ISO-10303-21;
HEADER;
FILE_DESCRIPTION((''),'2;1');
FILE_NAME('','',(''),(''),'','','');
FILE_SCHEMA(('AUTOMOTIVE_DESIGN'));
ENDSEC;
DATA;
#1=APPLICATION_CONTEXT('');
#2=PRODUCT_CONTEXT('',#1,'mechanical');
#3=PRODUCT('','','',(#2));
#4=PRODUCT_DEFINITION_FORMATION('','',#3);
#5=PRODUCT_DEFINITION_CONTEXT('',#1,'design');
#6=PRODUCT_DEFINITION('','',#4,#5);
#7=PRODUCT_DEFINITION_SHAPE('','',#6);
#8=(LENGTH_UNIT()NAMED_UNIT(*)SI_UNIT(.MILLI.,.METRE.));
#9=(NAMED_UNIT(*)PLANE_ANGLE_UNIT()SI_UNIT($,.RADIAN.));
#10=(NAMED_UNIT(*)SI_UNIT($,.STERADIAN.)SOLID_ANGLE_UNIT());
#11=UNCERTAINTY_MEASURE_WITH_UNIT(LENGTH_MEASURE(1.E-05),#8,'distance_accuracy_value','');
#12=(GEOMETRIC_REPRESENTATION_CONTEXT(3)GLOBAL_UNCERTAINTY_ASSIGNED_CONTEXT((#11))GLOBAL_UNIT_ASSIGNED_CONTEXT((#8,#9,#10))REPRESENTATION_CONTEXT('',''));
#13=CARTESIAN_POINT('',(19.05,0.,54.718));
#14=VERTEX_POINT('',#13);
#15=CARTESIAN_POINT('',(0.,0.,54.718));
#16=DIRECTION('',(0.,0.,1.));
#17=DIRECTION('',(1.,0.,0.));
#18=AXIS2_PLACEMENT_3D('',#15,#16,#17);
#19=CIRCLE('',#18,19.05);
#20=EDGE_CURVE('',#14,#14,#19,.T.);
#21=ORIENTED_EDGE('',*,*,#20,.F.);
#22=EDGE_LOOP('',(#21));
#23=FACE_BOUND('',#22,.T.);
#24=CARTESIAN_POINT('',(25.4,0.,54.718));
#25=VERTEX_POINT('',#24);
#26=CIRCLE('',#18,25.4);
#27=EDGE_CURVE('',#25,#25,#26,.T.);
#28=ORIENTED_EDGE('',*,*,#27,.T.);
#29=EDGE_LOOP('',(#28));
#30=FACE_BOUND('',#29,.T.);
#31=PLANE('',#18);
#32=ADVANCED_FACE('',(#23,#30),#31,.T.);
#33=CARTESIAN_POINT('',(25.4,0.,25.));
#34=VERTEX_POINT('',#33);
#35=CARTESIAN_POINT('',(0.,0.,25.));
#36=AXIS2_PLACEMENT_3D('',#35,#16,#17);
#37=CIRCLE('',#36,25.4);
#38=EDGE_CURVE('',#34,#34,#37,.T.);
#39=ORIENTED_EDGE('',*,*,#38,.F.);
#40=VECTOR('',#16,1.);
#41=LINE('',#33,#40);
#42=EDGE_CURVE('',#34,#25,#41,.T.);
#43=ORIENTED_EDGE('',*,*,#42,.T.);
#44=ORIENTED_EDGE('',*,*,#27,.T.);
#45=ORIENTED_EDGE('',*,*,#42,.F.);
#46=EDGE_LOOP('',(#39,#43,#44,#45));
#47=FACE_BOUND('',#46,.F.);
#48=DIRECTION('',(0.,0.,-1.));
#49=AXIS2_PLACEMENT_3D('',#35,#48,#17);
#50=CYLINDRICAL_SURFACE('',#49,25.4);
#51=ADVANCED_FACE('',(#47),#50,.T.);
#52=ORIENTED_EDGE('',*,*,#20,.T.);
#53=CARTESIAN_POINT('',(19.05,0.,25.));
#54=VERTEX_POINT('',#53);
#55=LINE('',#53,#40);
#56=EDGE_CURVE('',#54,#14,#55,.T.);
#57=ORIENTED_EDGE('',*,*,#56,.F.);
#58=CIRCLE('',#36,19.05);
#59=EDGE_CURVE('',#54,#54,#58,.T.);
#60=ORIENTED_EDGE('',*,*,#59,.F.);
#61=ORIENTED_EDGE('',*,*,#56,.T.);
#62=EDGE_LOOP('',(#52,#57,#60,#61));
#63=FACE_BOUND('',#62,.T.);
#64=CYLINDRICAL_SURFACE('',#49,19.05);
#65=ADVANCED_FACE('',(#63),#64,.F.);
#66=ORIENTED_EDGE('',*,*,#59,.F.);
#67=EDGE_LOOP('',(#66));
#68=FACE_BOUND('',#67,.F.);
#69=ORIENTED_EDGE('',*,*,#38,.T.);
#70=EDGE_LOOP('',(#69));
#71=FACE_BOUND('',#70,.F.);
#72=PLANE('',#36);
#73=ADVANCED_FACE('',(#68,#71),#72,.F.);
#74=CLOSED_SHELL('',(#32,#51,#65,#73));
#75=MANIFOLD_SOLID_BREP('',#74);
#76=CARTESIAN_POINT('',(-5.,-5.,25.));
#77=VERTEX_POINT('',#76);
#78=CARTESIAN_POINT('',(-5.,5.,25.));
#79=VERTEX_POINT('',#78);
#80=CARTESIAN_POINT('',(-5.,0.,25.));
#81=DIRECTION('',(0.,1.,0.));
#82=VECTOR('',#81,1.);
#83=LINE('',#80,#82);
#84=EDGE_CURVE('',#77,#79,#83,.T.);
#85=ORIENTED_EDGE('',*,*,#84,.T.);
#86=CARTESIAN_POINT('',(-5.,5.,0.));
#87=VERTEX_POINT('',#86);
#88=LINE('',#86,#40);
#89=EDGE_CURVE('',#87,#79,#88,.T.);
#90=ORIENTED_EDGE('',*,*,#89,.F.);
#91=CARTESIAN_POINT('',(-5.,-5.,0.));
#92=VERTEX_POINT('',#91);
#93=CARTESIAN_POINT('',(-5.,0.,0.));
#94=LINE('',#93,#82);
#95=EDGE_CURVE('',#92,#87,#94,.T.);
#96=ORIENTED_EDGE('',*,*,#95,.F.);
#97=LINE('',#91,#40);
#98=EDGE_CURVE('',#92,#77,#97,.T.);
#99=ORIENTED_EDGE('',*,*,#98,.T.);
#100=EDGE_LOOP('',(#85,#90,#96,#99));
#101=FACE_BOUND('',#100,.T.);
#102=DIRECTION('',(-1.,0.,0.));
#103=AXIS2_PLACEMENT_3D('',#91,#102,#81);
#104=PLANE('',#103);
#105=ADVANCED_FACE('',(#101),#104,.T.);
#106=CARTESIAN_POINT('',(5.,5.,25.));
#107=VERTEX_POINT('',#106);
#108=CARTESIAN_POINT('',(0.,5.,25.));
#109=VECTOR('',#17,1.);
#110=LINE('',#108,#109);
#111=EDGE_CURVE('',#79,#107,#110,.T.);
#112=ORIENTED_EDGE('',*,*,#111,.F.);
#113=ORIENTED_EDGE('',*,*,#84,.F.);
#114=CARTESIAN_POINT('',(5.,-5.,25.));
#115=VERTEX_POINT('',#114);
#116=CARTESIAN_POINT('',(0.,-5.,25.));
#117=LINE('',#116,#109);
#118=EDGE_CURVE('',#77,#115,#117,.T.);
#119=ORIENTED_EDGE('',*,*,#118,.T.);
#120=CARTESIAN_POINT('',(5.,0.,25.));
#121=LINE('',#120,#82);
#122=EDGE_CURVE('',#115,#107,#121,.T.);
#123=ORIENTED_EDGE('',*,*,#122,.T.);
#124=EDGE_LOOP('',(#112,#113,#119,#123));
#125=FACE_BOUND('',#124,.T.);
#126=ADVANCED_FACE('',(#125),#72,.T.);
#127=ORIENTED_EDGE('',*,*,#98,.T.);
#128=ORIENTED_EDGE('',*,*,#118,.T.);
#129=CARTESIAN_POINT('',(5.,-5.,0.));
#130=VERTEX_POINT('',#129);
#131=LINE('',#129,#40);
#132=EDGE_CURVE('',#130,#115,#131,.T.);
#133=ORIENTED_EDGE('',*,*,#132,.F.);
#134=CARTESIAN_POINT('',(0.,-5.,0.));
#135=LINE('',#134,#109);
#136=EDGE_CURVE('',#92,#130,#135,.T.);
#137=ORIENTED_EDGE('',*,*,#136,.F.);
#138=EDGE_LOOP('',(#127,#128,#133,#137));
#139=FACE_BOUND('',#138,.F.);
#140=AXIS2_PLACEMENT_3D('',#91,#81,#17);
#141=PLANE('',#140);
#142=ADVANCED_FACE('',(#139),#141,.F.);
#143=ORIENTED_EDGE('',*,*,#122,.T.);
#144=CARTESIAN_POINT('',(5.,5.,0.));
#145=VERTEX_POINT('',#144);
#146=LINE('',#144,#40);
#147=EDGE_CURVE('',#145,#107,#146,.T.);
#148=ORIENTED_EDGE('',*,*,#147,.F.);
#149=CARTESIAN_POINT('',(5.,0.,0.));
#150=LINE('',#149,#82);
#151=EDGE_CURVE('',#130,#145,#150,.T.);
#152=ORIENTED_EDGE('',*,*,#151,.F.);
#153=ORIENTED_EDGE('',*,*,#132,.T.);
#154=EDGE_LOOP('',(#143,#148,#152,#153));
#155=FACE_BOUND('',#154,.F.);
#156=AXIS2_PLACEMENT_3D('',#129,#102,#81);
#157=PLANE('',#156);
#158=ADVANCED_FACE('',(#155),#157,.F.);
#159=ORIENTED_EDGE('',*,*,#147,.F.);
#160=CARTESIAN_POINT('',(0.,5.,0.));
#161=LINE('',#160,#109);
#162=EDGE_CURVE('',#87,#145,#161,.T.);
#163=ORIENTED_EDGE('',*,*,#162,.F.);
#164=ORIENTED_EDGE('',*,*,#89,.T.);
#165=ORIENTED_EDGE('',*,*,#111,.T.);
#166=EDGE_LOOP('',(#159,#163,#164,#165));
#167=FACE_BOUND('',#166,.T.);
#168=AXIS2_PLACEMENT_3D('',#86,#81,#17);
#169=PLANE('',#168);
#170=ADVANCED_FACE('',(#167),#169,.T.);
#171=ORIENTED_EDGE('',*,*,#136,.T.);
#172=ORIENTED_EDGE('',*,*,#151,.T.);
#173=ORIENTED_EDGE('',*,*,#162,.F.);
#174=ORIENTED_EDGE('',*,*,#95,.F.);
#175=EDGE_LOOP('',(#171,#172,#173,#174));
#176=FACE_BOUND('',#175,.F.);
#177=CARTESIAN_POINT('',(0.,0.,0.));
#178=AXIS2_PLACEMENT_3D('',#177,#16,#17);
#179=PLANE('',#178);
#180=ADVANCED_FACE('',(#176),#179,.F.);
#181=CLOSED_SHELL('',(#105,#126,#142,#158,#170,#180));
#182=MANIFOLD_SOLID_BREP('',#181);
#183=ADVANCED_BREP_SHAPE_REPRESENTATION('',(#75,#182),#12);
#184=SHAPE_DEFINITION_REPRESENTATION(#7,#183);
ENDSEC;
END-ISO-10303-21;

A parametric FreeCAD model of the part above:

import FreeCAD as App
import Part
import Sketcher
from FreeCAD import Vector
Q = App.Units.Quantity

doc = App.newDocument("Part")
params = doc.addObject("Spreadsheet::Sheet", "Params")
for row, (alias, value) in enumerate([
    ("pad1_length", "25 mm"),
    ("sketch2_diameter", "2 in"),
    ("sketch2_diameter2", "1.5 in"),
    ("pad2_length", "1.17 in"),
], start=1):
    params.set(f"A{row}", alias)
    params.set(f"B{row}", "=" + value)
    params.setAlias(f"B{row}", alias)

body = doc.addObject("PartDesign::Body", "Body")

# Sketch on XY plane
sketch1 = doc.addObject("Sketcher::SketchObject", "Sketch")
body.addObject(sketch1)
sketch1.AttachmentSupport = (doc.XY_Plane, [""])
sketch1.MapMode = "FlatFace"
sketch1.addGeometry(Part.LineSegment(Vector(-5, 5, 0), Vector(-5, -5, 0)), False)
sketch1.addGeometry(Part.LineSegment(Vector(-5, -5, 0), Vector(5, -5, 0)), False)
sketch1.addGeometry(Part.LineSegment(Vector(5, -5, 0), Vector(5, 5, 0)), False)
sketch1.addGeometry(Part.LineSegment(Vector(5, 5, 0), Vector(-5, 5, 0)), False)
sketch1.addConstraint(Sketcher.Constraint("Coincident", 0, 2, 1, 1))
sketch1.addConstraint(Sketcher.Constraint("Coincident", 1, 2, 2, 1))
sketch1.addConstraint(Sketcher.Constraint("Coincident", 2, 2, 3, 1))
sketch1.addConstraint(Sketcher.Constraint("Coincident", 3, 2, 0, 1))
sketch1.addConstraint(Sketcher.Constraint("Vertical", 0))
sketch1.addConstraint(Sketcher.Constraint("Horizontal", 1))
sketch1.addConstraint(Sketcher.Constraint("Vertical", 2))
sketch1.addConstraint(Sketcher.Constraint("Horizontal", 3))
sketch1.addConstraint(Sketcher.Constraint("Symmetric", 0, 2, 2, 2, -1, 1))
sketch1.addConstraint(Sketcher.Constraint("Equal", 3, 0))
sketch1.addConstraint(Sketcher.Constraint("DistanceX", 1, 1, 1, 2, Q("10 mm")))
pad1 = doc.addObject("PartDesign::Pad", "Pad")
body.addObject(pad1)
pad1.Profile = sketch1
pad1.setExpression("Length", "Params.pad1_length")
body2 = doc.addObject("PartDesign::Body", "Body001")

# Sketch on XY plane
sketch2 = doc.addObject("Sketcher::SketchObject", "Sketch001")
body2.addObject(sketch2)
sketch2.AttachmentSupport = (doc.getObject("XY_Plane001"), [""])
sketch2.MapMode = "FlatFace"
sketch2.AttachmentOffset = App.Placement(Vector(0, 0, 25), App.Rotation())
sketch2.addGeometry(Part.Circle(Vector(0, 0, 0), Vector(0, 0, 1), 25), False)
sketch2.addGeometry(Part.Circle(Vector(0, 0, 0), Vector(0, 0, 1), 19), False)
sketch2.addConstraint(Sketcher.Constraint("Coincident", 0, 3, -1, 1))
sketch2.addConstraint(Sketcher.Constraint("Coincident", 1, 3, -1, 1))
sketch2.addConstraint(Sketcher.Constraint("Diameter", 0, Q("2 in")))
sketch2.addConstraint(Sketcher.Constraint("Diameter", 1, Q("1.5 in")))
sketch2.setExpression("Constraints[2]", "Params.sketch2_diameter")
sketch2.setExpression("Constraints[3]", "Params.sketch2_diameter2")
pad2 = doc.addObject("PartDesign::Pad", "Pad001")
body2.addObject(pad2)
pad2.Profile = sketch2
pad2.setExpression("Length", "Params.pad2_length")

doc.recompute()
